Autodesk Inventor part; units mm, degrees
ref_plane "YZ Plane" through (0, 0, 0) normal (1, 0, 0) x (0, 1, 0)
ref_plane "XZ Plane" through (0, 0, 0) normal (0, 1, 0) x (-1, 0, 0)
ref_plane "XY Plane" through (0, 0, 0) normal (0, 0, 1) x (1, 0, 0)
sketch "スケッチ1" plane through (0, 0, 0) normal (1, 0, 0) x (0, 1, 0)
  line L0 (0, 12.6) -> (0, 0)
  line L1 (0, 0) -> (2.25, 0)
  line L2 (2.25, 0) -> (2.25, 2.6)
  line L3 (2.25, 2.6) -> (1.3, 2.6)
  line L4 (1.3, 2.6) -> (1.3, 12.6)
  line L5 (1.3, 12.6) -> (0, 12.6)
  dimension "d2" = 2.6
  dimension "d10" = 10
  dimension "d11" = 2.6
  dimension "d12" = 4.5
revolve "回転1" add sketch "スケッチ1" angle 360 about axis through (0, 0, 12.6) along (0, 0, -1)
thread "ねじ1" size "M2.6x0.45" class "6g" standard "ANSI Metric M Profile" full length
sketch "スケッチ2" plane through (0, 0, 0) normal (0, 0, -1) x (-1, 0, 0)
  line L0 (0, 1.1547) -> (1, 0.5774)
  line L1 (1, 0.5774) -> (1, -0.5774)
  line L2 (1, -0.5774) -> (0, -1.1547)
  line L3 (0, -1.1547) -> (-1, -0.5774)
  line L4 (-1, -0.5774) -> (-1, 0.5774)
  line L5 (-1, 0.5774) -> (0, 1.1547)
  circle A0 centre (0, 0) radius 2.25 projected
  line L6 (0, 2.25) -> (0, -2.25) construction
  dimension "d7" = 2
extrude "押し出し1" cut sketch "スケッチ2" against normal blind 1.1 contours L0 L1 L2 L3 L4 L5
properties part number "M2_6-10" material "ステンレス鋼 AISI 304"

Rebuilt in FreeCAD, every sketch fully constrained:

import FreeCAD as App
import Part
import Sketcher
Q = App.Units.Quantity

doc = App.newDocument("Part")
body = doc.addObject("PartDesign::Body", "Body")

sketch1 = doc.addObject("Sketcher::SketchObject", "Sketch")
body.addObject(sketch1)
sketch1.AttachmentSupport = (doc.YZ_Plane, [""])
sketch1.MapMode = "FlatFace"
sketch1.addGeometry(Part.LineSegment(App.Vector(1.3, 12.6, 0), App.Vector(0, 12.6, 0)), False)
sketch1.addGeometry(Part.LineSegment(App.Vector(0, 12.6, 0), App.Vector(0, 0, 0)), False)
sketch1.addGeometry(Part.LineSegment(App.Vector(0, 0, 0), App.Vector(2.2, 0, 0)), False)
sketch1.addGeometry(Part.LineSegment(App.Vector(2.2, 0, 0), App.Vector(2.2, 2.6, 0)), False)
sketch1.addGeometry(Part.LineSegment(App.Vector(2.2, 2.6, 0), App.Vector(1.3, 2.6, 0)), False)
sketch1.addGeometry(Part.LineSegment(App.Vector(1.3, 2.6, 0), App.Vector(1.3, 12.6, 0)), False)
sketch1.addConstraint(Sketcher.Constraint("Coincident", 0, 2, 1, 1))
sketch1.addConstraint(Sketcher.Constraint("Coincident", 1, 2, 2, 1))
sketch1.addConstraint(Sketcher.Constraint("Coincident", 2, 2, 3, 1))
sketch1.addConstraint(Sketcher.Constraint("Coincident", 3, 2, 4, 1))
sketch1.addConstraint(Sketcher.Constraint("Coincident", 4, 2, 5, 1))
sketch1.addConstraint(Sketcher.Constraint("Coincident", 5, 2, 0, 1))
sketch1.addConstraint(Sketcher.Constraint("Horizontal", 0))
sketch1.addConstraint(Sketcher.Constraint("Vertical", 1))
sketch1.addConstraint(Sketcher.Constraint("Horizontal", 2))
sketch1.addConstraint(Sketcher.Constraint("Vertical", 3))
sketch1.addConstraint(Sketcher.Constraint("Horizontal", 4))
sketch1.addConstraint(Sketcher.Constraint("Vertical", 5))
sketch1.addConstraint(Sketcher.Constraint("Coincident", 1, 2, -1, 1))
sketch1.addConstraint(Sketcher.Constraint("DistanceY", 5, 1, 5, 2, Q("10 mm")))
sketch1.addConstraint(Sketcher.Constraint("DistanceY", 3, 1, 3, 2, Q("2.6 mm")))
sketch1.addConstraint(Sketcher.Constraint("DistanceX", 0, 2, 0, 1, Q("1.3 mm")))
sketch1.addConstraint(Sketcher.Constraint("DistanceX", 2, 1, 2, 2, Q("2.25 mm")))
revolution = doc.addObject("PartDesign::Revolution", "Revolution")
body.addObject(revolution)
revolution.Profile = sketch1
revolution.ReferenceAxis = (sketch1, ["V_Axis"])
revolution.Angle = 360

sketch2 = doc.addObject("Sketcher::SketchObject", "Sketch001")
body.addObject(sketch2)
sketch2.AttachmentSupport = (doc.XY_Plane, [""])
sketch2.MapMode = "FlatFace"
sketch2.addGeometry(Part.LineSegment(App.Vector(-1, 0.6, 0), App.Vector(0, 1.2, 0)), False)
sketch2.addGeometry(Part.LineSegment(App.Vector(0, 1.2, 0), App.Vector(1, 0.6, 0)), False)
sketch2.addGeometry(Part.LineSegment(App.Vector(1, 0.6, 0), App.Vector(1, -0.6, 0)), False)
sketch2.addGeometry(Part.LineSegment(App.Vector(1, -0.6, 0), App.Vector(0, -1.2, 0)), False)
sketch2.addGeometry(Part.LineSegment(App.Vector(0, -1.2, 0), App.Vector(-1, -0.6, 0)), False)
sketch2.addGeometry(Part.LineSegment(App.Vector(-1, -0.6, 0), App.Vector(-1, 0.6, 0)), False)
sketch2.addConstraint(Sketcher.Constraint("Coincident", 0, 2, 1, 1))
sketch2.addConstraint(Sketcher.Constraint("Coincident", 1, 2, 2, 1))
sketch2.addConstraint(Sketcher.Constraint("Coincident", 2, 2, 3, 1))
sketch2.addConstraint(Sketcher.Constraint("Coincident", 3, 2, 4, 1))
sketch2.addConstraint(Sketcher.Constraint("Coincident", 4, 2, 5, 1))
sketch2.addConstraint(Sketcher.Constraint("Coincident", 5, 2, 0, 1))
sketch2.addConstraint(Sketcher.Constraint("Vertical", 2))
sketch2.addConstraint(Sketcher.Constraint("Vertical", 5))
sketch2.addConstraint(Sketcher.Constraint("Symmetric", 0, 2, 3, 2, -1, 1))
sketch2.addConstraint(Sketcher.Constraint("Symmetric", 1, 2, 4, 2, -1, 1))
sketch2.addConstraint(Sketcher.Constraint("PointOnObject", 0, 2, -2))
sketch2.addConstraint(Sketcher.Constraint("Parallel", 0, 3))
sketch2.addConstraint(Sketcher.Constraint("Horizontal", 2, 2, 4, 2))
sketch2.addConstraint(Sketcher.Constraint("DistanceX", 4, 2, 2, 2, Q("2 mm")))
sketch2.addConstraint(Sketcher.Constraint("DistanceY", 2, 2, 2, 1, Q("1.1548 mm")))
sketch2.addConstraint(Sketcher.Constraint("DistanceY", 2, 2, 0, 2, Q("1.732 mm")))
pocket1 = doc.addObject("PartDesign::Pocket", "Pocket")
body.addObject(pocket1)
pocket1.Profile = sketch2
pocket1.Length = 1.1
pocket1.Reversed = True

doc.recompute()
